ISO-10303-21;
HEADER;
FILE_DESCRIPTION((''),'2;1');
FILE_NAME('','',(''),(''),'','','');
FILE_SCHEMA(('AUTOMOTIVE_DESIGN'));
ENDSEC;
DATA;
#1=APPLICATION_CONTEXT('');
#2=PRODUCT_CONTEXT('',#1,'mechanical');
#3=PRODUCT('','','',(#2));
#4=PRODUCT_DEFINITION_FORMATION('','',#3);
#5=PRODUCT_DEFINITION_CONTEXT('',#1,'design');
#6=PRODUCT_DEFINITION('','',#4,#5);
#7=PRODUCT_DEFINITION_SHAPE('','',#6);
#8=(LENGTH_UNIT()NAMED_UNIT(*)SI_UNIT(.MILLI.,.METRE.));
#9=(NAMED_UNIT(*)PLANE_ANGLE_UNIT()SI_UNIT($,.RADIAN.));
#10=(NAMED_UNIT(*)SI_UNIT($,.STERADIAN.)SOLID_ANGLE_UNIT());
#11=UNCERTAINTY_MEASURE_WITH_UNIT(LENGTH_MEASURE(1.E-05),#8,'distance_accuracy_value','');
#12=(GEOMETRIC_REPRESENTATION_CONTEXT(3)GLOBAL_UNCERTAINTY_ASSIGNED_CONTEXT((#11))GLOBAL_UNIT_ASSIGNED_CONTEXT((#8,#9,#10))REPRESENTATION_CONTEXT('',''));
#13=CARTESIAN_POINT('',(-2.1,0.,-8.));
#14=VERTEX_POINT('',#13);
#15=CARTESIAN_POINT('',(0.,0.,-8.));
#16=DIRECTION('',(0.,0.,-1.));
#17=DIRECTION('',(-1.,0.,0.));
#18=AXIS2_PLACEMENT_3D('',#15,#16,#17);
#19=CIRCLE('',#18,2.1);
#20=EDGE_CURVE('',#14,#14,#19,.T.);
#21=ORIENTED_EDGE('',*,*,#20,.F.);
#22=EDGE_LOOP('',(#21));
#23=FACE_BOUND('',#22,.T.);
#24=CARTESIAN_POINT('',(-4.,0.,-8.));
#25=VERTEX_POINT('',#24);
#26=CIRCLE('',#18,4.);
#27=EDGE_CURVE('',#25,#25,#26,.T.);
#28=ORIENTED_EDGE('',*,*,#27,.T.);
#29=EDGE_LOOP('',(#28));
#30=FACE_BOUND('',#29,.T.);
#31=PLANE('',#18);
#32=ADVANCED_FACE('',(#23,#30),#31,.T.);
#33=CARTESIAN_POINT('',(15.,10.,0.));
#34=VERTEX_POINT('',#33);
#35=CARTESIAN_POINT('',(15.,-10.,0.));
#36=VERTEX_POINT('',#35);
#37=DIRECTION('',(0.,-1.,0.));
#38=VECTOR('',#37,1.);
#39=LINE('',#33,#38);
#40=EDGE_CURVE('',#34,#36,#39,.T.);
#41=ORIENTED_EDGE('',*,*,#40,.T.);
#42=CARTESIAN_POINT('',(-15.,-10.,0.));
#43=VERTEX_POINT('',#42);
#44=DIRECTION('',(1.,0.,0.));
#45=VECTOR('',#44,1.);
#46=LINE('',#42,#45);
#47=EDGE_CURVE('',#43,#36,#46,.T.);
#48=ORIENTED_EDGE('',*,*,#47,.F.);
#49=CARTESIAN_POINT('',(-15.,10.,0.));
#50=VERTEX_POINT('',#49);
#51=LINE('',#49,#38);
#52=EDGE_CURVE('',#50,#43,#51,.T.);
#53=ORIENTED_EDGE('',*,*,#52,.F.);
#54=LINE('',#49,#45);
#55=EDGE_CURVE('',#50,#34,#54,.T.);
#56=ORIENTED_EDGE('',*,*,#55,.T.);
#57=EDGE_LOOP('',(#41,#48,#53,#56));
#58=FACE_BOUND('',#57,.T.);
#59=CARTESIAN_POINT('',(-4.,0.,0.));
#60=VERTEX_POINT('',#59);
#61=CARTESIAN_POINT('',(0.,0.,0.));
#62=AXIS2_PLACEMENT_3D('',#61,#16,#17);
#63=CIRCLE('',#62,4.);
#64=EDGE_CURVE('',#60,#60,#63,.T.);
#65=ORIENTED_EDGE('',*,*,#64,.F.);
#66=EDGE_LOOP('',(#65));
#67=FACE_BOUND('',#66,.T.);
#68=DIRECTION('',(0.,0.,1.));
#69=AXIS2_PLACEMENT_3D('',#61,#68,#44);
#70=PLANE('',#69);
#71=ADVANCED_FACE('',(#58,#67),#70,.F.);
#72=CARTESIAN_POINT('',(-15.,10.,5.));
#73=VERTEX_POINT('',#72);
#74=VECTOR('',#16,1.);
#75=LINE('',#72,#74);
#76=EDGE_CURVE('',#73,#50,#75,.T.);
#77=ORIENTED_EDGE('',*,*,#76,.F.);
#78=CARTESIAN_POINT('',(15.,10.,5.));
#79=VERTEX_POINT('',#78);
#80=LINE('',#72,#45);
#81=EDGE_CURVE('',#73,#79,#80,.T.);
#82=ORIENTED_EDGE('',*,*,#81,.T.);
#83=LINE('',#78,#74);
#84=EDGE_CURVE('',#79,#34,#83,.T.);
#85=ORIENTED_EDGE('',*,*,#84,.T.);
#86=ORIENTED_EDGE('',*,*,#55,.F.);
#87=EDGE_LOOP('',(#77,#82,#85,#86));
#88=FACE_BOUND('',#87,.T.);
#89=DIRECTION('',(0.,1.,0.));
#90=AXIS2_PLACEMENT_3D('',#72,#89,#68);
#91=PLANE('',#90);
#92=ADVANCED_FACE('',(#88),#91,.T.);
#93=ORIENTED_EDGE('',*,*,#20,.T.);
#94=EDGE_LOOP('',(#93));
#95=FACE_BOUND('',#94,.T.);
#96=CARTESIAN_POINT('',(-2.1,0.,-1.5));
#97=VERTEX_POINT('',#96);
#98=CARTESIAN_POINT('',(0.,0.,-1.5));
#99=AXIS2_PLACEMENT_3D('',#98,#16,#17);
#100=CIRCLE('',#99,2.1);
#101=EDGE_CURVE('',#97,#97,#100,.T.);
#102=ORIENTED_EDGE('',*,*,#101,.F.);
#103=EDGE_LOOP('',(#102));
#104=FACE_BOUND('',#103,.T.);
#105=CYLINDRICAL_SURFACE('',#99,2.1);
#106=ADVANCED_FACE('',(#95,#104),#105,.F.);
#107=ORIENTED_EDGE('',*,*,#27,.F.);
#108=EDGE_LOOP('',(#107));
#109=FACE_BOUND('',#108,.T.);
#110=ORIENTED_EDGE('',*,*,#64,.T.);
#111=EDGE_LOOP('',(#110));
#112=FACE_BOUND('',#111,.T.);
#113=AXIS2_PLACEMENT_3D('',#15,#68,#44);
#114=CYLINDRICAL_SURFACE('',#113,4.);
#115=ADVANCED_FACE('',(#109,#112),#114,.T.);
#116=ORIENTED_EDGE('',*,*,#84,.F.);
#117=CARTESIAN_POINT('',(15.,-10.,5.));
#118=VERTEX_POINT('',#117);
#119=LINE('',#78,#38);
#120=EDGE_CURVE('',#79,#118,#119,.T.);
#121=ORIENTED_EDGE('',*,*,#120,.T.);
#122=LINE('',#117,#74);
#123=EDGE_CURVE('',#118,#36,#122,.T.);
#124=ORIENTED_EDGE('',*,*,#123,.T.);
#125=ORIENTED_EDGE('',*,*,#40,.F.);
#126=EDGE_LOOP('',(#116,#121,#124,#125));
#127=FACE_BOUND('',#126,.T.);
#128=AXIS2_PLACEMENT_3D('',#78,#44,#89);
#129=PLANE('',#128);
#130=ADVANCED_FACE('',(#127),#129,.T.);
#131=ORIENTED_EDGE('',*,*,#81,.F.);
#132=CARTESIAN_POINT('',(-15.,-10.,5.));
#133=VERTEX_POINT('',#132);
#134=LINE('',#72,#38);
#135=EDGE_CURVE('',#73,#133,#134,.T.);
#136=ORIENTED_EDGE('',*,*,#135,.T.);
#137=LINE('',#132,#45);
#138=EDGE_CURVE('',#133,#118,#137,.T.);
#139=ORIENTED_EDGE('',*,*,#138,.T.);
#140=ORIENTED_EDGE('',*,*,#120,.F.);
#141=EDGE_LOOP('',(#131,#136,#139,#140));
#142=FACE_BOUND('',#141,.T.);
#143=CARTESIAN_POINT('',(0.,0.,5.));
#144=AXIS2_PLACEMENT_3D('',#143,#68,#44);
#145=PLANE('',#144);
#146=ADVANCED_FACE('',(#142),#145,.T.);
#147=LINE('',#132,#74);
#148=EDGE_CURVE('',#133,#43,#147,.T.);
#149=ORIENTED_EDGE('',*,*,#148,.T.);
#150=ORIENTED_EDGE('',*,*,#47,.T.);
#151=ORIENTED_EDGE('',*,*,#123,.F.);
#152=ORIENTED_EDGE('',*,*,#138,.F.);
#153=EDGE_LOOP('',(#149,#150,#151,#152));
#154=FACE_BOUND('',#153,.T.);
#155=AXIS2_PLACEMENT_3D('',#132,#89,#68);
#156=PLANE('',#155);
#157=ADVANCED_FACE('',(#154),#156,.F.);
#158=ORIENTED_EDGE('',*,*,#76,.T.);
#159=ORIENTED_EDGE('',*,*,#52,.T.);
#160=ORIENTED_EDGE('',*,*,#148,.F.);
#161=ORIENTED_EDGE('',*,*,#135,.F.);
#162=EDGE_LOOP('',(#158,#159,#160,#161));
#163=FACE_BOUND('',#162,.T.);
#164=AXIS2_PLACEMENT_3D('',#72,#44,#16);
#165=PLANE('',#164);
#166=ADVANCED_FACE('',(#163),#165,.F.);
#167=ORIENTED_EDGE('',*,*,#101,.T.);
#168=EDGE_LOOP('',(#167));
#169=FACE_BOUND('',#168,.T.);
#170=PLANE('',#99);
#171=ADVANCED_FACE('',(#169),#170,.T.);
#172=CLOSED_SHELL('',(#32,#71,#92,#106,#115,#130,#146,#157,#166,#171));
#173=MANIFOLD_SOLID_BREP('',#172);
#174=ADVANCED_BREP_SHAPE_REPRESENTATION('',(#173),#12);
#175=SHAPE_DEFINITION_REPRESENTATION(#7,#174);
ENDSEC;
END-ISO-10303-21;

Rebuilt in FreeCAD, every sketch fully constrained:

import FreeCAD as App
import Part
import Sketcher
Q = App.Units.Quantity


def add_polygon(sketch, points):
    """Adds a closed chain of lines whose ends are joined by coincident constraints."""
    first, n = sketch.GeometryCount, len(points)
    for a, b in zip(points, points[1:] + points[:1]):
        sketch.addGeometry(Part.LineSegment(App.Vector(*a, 0), App.Vector(*b, 0)), False)
    for i in range(n):
        sketch.addConstraint(Sketcher.Constraint("Coincident", first + i, 2, first + (i + 1) % n, 1))

doc = App.newDocument("Part")
body = doc.addObject("PartDesign::Body", "Body")

# Sketch on XY plane
sketch1 = doc.addObject("Sketcher::SketchObject", "Sketch")
body.addObject(sketch1)
sketch1.AttachmentSupport = (doc.XY_Plane, [""])
sketch1.MapMode = "FlatFace"
add_polygon(sketch1, [(-15, 10), (-15, -10), (15, -10), (15, 10)])  # lines 0-3
sketch1.addConstraint(Sketcher.Constraint("Vertical", 0))
sketch1.addConstraint(Sketcher.Constraint("Horizontal", 1))
sketch1.addConstraint(Sketcher.Constraint("Vertical", 2))
sketch1.addConstraint(Sketcher.Constraint("Horizontal", 3))
sketch1.addConstraint(Sketcher.Constraint("Symmetric", 0, 2, 2, 2, -1, 1))
sketch1.addConstraint(Sketcher.Constraint("DistanceX", 1, 1, 1, 2, Q("30 mm")))
sketch1.addConstraint(Sketcher.Constraint("DistanceY", 0, 2, 0, 1, Q("20 mm")))
pad1 = doc.addObject("PartDesign::Pad", "Pad")
body.addObject(pad1)
pad1.Profile = sketch1
pad1.Length = 5

# Sketch on XY plane
sketch2 = doc.addObject("Sketcher::SketchObject", "Sketch001")
body.addObject(sketch2)
sketch2.AttachmentSupport = (doc.XY_Plane, [""])
sketch2.MapMode = "FlatFace"
sketch2.addGeometry(Part.Circle(App.Vector(0, 0, 0), App.Vector(0, 0, 1), 4), False)
sketch2.addConstraint(Sketcher.Constraint("Coincident", 0, 3, -1, 1))
sketch2.addConstraint(Sketcher.Constraint("Diameter", 0, Q("8 mm")))
pad2 = doc.addObject("PartDesign::Pad", "Pad001")
body.addObject(pad2)
pad2.Profile = sketch2
pad2.Length = 8
pad2.Reversed = True

# Sketch on XY plane
sketch3 = doc.addObject("Sketcher::SketchObject", "Sketch002")
body.addObject(sketch3)
sketch3.AttachmentSupport = (doc.XY_Plane, [""])
sketch3.MapMode = "FlatFace"
sketch3.AttachmentOffset = App.Placement(App.Vector(0, 0, -8), App.Rotation())
sketch3.addGeometry(Part.Circle(App.Vector(0, 0, 0), App.Vector(0, 0, 1), 2.1), False)
sketch3.addConstraint(Sketcher.Constraint("Coincident", 0, 3, -1, 1))
sketch3.addConstraint(Sketcher.Constraint("Diameter", 0, Q("4.2 mm")))
pocket1 = doc.addObject("PartDesign::Pocket", "Pocket")
body.addObject(pocket1)
pocket1.Profile = sketch3
pocket1.Length = 6.5
pocket1.Reversed = True

doc.recompute()
